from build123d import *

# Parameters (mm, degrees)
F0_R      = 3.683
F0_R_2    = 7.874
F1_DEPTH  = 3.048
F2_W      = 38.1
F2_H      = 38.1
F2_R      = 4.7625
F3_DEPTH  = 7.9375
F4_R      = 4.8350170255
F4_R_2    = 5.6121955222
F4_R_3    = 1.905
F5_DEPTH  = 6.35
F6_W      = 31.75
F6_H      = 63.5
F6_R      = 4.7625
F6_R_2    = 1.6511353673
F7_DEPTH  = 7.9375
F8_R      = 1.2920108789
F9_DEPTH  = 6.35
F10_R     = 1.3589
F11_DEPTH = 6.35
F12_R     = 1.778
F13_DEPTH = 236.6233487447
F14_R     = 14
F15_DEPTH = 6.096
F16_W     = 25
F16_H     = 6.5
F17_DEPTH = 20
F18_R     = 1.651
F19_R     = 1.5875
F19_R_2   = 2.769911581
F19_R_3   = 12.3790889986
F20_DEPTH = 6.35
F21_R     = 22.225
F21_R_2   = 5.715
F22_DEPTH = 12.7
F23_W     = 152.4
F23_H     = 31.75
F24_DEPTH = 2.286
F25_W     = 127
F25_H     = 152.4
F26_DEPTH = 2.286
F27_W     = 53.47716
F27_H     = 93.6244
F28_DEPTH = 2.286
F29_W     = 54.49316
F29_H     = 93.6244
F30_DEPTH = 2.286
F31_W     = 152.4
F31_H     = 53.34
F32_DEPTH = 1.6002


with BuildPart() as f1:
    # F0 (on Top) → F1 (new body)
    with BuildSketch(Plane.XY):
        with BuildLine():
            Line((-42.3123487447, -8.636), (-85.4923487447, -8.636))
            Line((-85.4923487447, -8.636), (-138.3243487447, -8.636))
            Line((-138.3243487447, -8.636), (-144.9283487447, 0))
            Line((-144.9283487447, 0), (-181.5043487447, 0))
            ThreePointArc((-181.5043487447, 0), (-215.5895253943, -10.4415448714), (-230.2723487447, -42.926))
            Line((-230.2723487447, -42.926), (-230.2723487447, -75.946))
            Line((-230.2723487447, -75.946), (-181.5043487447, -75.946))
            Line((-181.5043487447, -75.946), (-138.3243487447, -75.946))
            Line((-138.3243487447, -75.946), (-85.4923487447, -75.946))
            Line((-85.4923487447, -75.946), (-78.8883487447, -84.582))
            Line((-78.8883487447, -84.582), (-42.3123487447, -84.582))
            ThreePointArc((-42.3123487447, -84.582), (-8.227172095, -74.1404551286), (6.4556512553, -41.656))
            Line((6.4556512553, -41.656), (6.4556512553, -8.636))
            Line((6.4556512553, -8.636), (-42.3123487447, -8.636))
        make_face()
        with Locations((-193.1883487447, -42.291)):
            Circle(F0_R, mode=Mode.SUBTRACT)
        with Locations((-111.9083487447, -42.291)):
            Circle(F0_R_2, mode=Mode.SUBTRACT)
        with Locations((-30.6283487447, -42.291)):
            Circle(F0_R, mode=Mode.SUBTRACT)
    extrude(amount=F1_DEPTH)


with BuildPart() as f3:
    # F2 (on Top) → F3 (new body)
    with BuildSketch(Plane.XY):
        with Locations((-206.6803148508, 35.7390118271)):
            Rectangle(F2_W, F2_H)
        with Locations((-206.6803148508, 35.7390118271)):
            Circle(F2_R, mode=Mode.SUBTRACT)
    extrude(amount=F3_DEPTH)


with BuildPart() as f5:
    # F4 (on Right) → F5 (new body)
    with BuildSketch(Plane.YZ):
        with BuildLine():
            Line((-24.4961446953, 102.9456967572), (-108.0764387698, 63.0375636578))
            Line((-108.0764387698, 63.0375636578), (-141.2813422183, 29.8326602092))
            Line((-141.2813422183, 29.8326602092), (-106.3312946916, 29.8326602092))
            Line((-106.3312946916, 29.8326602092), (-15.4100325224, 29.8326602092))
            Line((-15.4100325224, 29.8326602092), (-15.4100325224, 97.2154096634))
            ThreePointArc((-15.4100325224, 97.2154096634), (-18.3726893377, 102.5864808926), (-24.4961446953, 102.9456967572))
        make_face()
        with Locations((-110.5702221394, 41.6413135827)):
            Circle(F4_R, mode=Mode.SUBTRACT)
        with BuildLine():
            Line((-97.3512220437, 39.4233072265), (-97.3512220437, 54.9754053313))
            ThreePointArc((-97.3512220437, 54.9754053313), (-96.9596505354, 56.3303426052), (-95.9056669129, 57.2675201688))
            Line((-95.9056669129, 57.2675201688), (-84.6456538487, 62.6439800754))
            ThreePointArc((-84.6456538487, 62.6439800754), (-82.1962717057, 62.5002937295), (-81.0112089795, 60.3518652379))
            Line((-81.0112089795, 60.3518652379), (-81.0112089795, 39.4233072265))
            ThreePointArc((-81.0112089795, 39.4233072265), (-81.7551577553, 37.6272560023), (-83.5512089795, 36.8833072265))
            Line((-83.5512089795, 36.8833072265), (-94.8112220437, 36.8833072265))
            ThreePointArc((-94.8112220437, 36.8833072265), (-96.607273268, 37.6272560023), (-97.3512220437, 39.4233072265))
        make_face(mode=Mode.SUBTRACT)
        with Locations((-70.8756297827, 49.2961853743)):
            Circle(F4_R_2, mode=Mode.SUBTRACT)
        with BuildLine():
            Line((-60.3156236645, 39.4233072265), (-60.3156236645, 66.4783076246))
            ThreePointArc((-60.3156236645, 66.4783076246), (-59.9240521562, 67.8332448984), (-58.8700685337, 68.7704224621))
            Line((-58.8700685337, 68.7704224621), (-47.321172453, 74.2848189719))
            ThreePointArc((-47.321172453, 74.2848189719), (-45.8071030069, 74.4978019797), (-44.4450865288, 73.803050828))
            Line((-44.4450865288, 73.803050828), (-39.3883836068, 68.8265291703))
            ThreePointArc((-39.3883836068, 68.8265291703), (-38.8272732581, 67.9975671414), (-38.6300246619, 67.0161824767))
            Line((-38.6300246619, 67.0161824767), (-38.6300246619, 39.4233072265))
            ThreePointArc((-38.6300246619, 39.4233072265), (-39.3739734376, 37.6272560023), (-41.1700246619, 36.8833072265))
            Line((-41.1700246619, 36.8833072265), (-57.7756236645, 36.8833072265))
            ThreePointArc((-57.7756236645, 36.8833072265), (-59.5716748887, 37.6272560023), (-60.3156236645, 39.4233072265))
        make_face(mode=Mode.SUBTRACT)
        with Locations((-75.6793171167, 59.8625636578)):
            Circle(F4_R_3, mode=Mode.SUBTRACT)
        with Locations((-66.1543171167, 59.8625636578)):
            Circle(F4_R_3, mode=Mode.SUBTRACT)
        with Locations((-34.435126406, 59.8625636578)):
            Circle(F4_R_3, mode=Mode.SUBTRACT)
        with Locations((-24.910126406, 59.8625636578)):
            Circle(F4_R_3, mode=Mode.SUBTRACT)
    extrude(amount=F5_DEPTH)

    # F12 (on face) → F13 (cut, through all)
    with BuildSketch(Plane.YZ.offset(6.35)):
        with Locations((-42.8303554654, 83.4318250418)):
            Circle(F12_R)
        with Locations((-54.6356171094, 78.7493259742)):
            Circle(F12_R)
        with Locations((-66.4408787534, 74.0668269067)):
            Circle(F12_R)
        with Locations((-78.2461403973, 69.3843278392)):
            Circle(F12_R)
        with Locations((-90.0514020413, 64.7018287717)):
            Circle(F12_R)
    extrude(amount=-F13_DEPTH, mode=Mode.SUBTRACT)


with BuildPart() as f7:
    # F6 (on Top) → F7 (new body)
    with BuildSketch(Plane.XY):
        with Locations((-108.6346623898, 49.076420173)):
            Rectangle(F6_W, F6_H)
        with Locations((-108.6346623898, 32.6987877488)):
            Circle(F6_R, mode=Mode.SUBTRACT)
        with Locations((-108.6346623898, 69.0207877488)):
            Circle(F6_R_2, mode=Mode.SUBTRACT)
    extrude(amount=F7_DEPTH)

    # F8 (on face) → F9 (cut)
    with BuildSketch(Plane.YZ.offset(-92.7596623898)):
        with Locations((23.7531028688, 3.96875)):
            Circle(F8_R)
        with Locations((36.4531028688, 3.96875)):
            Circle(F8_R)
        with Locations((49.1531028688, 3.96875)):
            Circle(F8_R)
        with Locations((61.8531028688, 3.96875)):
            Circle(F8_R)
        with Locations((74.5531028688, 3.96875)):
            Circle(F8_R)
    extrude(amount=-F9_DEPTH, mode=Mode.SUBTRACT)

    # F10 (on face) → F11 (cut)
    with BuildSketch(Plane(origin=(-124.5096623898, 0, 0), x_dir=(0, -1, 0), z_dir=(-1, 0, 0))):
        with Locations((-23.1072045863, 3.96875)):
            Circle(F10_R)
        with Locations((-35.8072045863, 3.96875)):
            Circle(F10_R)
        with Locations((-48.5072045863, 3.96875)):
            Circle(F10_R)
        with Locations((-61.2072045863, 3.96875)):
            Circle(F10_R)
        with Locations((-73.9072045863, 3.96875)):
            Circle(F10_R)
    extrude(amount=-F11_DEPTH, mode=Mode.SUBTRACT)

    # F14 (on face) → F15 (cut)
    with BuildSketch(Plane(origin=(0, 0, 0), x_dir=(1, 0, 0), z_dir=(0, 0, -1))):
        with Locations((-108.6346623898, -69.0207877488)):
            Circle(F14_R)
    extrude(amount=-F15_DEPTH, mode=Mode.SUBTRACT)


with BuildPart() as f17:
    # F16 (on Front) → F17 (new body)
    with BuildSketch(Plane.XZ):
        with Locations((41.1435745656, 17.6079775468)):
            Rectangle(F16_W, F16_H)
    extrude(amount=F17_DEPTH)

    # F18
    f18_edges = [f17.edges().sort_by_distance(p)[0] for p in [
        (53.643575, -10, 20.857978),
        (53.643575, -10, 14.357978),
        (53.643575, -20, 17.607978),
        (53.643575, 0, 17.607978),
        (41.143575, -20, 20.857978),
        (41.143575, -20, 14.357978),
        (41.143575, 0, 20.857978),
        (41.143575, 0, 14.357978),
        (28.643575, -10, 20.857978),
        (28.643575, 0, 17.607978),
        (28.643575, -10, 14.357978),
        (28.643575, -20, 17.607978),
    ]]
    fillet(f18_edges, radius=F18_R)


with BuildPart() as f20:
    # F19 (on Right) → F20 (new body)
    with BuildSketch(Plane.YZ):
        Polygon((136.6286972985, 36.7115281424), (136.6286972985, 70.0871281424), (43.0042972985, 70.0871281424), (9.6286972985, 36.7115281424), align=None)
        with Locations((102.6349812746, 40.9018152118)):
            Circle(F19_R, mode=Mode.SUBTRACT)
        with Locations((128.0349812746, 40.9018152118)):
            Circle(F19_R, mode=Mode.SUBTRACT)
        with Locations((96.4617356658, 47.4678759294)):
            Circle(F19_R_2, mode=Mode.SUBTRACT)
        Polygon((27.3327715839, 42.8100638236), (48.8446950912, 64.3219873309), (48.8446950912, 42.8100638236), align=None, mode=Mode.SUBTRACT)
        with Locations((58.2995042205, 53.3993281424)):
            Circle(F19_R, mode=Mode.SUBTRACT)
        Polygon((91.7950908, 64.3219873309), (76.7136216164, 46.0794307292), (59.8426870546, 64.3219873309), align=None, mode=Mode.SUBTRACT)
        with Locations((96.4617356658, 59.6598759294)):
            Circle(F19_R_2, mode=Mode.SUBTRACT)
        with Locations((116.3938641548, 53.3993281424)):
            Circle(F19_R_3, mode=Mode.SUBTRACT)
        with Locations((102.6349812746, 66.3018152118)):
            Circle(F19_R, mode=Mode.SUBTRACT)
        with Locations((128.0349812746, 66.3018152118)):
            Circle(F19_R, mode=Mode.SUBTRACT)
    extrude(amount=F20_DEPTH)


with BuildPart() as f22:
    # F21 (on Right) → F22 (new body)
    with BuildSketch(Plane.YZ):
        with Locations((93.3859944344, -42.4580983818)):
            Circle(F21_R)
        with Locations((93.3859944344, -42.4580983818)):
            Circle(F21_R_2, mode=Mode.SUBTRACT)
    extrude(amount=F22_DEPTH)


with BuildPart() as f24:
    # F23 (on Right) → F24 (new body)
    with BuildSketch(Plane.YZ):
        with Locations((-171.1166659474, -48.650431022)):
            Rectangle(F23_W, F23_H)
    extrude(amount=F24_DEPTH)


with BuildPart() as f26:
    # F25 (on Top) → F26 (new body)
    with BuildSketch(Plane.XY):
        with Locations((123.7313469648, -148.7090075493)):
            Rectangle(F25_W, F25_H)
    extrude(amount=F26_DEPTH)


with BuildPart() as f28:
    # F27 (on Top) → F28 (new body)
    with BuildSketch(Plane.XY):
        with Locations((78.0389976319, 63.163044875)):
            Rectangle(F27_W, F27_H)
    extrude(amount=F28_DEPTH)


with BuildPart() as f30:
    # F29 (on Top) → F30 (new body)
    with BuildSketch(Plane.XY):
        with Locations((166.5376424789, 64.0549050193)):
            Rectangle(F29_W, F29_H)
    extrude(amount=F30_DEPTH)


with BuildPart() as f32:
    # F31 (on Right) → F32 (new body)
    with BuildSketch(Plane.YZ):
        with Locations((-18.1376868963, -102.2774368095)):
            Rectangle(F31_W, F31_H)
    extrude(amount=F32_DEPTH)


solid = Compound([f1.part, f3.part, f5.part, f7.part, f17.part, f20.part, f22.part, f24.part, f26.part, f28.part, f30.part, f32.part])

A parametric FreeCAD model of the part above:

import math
import FreeCAD as App
import Part
import Sketcher

V = App.Vector
Q = App.Units.Quantity

doc = App.newDocument("Part")
params = doc.addObject("Spreadsheet::Sheet", "Params")
for row, (alias, value) in enumerate([
    ("sketch1_diameter", "0.29 in"),
    ("sketch1_diameter2", "0.62 in"),
    ("sketch1_width", "5.7 in"),
    ("sketch1_height", "1.3 in"),
    ("sketch1_width2", "1.44 in"),
    ("pad1_length", "0.12 in"),
    ("sketch2_diameter", "0.375 in"),
    ("sketch2_width", "1.5 in"),
    ("pad2_length", "0.3125 in"),
    ("sketch3_radius", "0.1 in"),
    ("sketch3_diameter", "0.15 in"),
    ("sketch3_radius2", "0.25 in"),
    ("pad3_length", "0.25 in"),
    ("sketch4_diameter", "0.14 in"),
    ("sketch5_diameter", "0.375 in"),
    ("sketch5_height", "2.5 in"),
    ("sketch5_width", "1.25 in"),
    ("pad4_length", "0.3125 in"),
    ("pocket2_length", "0.25 in"),
    ("sketch7_diameter", "0.107 in"),
    ("pocket3_length", "0.25 in"),
    ("pocket4_length", "0.24 in"),
    ("pad5_length", "20 mm"),
    ("fillet_radius", "0.065 in"),
    ("sketch10_width", "5 in"),
    ("sketch10_diameter", "0.125 in"),
    ("sketch10_width2", "3.686 in"),
    ("pad6_length", "0.25 in"),
    ("sketch11_diameter", "1.75 in"),
    ("sketch11_diameter2", "0.45 in"),
    ("pad7_length", "0.5 in"),
    ("sketch12_width", "6 in"),
    ("sketch12_height", "1.25 in"),
    ("pad8_length", "0.09 in"),
    ("sketch13_width", "5 in"),
    ("sketch13_height", "6 in"),
    ("pad9_length", "0.09 in"),
    ("sketch14_height", "3.686 in"),
    ("pad10_length", "0.09 in"),
    ("sketch15_height", "3.686 in"),
    ("pad11_length", "0.09 in"),
    ("sketch16_width", "6 in"),
    ("sketch16_height", "2.1 in"),
    ("pad12_length", "0.063 in"),
], start=1):
    params.set(f"A{row}", alias)
    params.set(f"B{row}", "=" + value)
    params.setAlias(f"B{row}", alias)

body = doc.addObject("PartDesign::Body", "Body")

sketch1 = doc.addObject("Sketcher::SketchObject", "Sketch")
body.addObject(sketch1)
sketch1.AttachmentSupport = (doc.XY_Plane, [""])
sketch1.MapMode = "FlatFace"
sketch1.addGeometry(Part.LineSegment(V(-138.3, -8.6, 0), V(-144.9, 0, 0)), False)
sketch1.addGeometry(Part.LineSegment(V(-144.9, 0, 0), V(-181.5, 0, 0)), False)
sketch1.addGeometry(Part.ArcOfCircle(Part.Circle(V(-187, -42.9, 0), V(0, 0, 1), 43.3), math.radians(83), math.radians(180)), False)
sketch1.addGeometry(Part.LineSegment(V(-230.3, -42.9, 0), V(-230.3, -75.9, 0)), False)
sketch1.addGeometry(Part.LineSegment(V(-230.3, -75.9, 0), V(-85.5, -75.9, 0)), False)
sketch1.addGeometry(Part.LineSegment(V(-85.5, -75.9, 0), V(-78.9, -84.6, 0)), False)
sketch1.addGeometry(Part.LineSegment(V(-78.9, -84.6, 0), V(-42.3, -84.6, 0)), False)
sketch1.addGeometry(Part.ArcOfCircle(Part.Circle(V(-36.8, -41.7, 0), V(0, 0, 1), 43.3), math.radians(-97), math.radians(0)), False)
sketch1.addGeometry(Part.LineSegment(V(6.5, -41.7, 0), V(6.5, -8.6, 0)), False)
sketch1.addGeometry(Part.LineSegment(V(6.5, -8.6, 0), V(-138.3, -8.6, 0)), False)
sketch1.addGeometry(Part.Circle(V(-193.2, -42.3, 0), V(0, 0, 1), 3.7), False)
sketch1.addGeometry(Part.Circle(V(-111.9, -42.3, 0), V(0, 0, 1), 7.9), False)
sketch1.addGeometry(Part.Circle(V(-30.6, -42.3, 0), V(0, 0, 1), 3.7), False)
sketch1.addConstraint(Sketcher.Constraint("Coincident", 0, 2, 1, 1))
sketch1.addConstraint(Sketcher.Constraint("Coincident", 1, 2, 2, 1))
sketch1.addConstraint(Sketcher.Constraint("Tangent", 2, 2, 3, 1))
sketch1.addConstraint(Sketcher.Constraint("Coincident", 3, 2, 4, 1))
sketch1.addConstraint(Sketcher.Constraint("Coincident", 4, 2, 5, 1))
sketch1.addConstraint(Sketcher.Constraint("Coincident", 5, 2, 6, 1))
sketch1.addConstraint(Sketcher.Constraint("Coincident", 6, 2, 7, 1))
sketch1.addConstraint(Sketcher.Constraint("Tangent", 7, 2, 8, 1))
sketch1.addConstraint(Sketcher.Constraint("Coincident", 8, 2, 9, 1))
sketch1.addConstraint(Sketcher.Constraint("Coincident", 9, 2, 0, 1))
sketch1.addConstraint(Sketcher.Constraint("Horizontal", 1))
sketch1.addConstraint(Sketcher.Constraint("Vertical", 3))
sketch1.addConstraint(Sketcher.Constraint("Horizontal", 4))
sketch1.addConstraint(Sketcher.Constraint("Horizontal", 6))
sketch1.addConstraint(Sketcher.Constraint("Vertical", 8))
sketch1.addConstraint(Sketcher.Constraint("Horizontal", 9))
sketch1.addConstraint(Sketcher.Constraint("Equal", 2, 7))
sketch1.addConstraint(Sketcher.Constraint("Equal", 10, 12))
sketch1.addConstraint(Sketcher.Constraint("PointOnObject", 0, 2, -1))
sketch1.addConstraint(Sketcher.Constraint("Parallel", 0, 5))
sketch1.addConstraint(Sketcher.Constraint("Horizontal", 10, 3, 11, 3))
sketch1.addConstraint(Sketcher.Constraint("Horizontal", 11, 3, 12, 3))
sketch1.addConstraint(Sketcher.Constraint("Equal", 1, 6))
sketch1.addConstraint(Sketcher.Constraint("Equal", 4, 9))
sketch1.addConstraint(Sketcher.Constraint("Equal", 3, 8))
sketch1.addConstraint(Sketcher.Constraint("Diameter", 10, Q("0.29 in")))
sketch1.addConstraint(Sketcher.Constraint("Diameter", 11, Q("0.62 in")))
sketch1.addConstraint(Sketcher.Constraint("DistanceX", 4, 1, 4, 2, Q("5.7 in")))
sketch1.addConstraint(Sketcher.Constraint("DistanceY", 3, 2, 3, 1, Q("1.3 in")))
sketch1.addConstraint(Sketcher.Constraint("DistanceX", 1, 2, 1, 1, Q("1.44 in")))
sketch1.addConstraint(Sketcher.Constraint("DistanceX", 10, 3, 11, 3, Q("3.2 in")))
sketch1.addConstraint(Sketcher.Constraint("DistanceX", 11, 3, 12, 3, Q("3.2 in")))
sketch1.addConstraint(Sketcher.Constraint("DistanceX", 0, 2, 11, 3, Q("1.3 in")))
sketch1.addConstraint(Sketcher.Constraint("DistanceX", 11, 3, 5, 2, Q("1.3 in")))
sketch1.addConstraint(Sketcher.Constraint("DistanceX", 4, 2, 6, 2, Q("1.7 in")))
sketch1.addConstraint(Sketcher.Constraint("DistanceY", 2, 3, -1, 1, Q("1.69 in")))
sketch1.addConstraint(Sketcher.Constraint("DistanceY", 7, 3, -1, 1, Q("1.64 in")))
sketch1.addConstraint(Sketcher.Constraint("DistanceY", 10, 3, -1, 1, Q("1.665 in")))
sketch1.addConstraint(Sketcher.Constraint("DistanceX", 7, 3, -1, 1, 36.82026))
sketch1.setExpression("Constraints[25]", "Params.sketch1_diameter")
sketch1.setExpression("Constraints[26]", "Params.sketch1_diameter2")
sketch1.setExpression("Constraints[27]", "Params.sketch1_width")
sketch1.setExpression("Constraints[28]", "Params.sketch1_height")
sketch1.setExpression("Constraints[29]", "Params.sketch1_width2")
pad1 = doc.addObject("PartDesign::Pad", "Pad")
body.addObject(pad1)
pad1.Profile = sketch1
pad1.setExpression("Length", "Params.pad1_length")
body2 = doc.addObject("PartDesign::Body", "Body001")

sketch2 = doc.addObject("Sketcher::SketchObject", "Sketch001")
body2.addObject(sketch2)
sketch2.AttachmentSupport = (doc.getObject("XY_Plane001"), [""])
sketch2.MapMode = "FlatFace"
sketch2.addGeometry(Part.LineSegment(V(-225.7, 54.8, 0), V(-225.7, 16.7, 0)), False)
sketch2.addGeometry(Part.LineSegment(V(-225.7, 16.7, 0), V(-187.6, 16.7, 0)), False)
sketch2.addGeometry(Part.LineSegment(V(-187.6, 16.7, 0), V(-187.6, 54.8, 0)), False)
sketch2.addGeometry(Part.LineSegment(V(-187.6, 54.8, 0), V(-225.7, 54.8, 0)), False)
sketch2.addGeometry(Part.Circle(V(-206.7, 35.7, 0), V(0, 0, 1), 4.8), False)
sketch2.addConstraint(Sketcher.Constraint("Coincident", 0, 2, 1, 1))
sketch2.addConstraint(Sketcher.Constraint("Coincident", 1, 2, 2, 1))
sketch2.addConstraint(Sketcher.Constraint("Coincident", 2, 2, 3, 1))
sketch2.addConstraint(Sketcher.Constraint("Coincident", 3, 2, 0, 1))
sketch2.addConstraint(Sketcher.Constraint("Vertical", 0))
sketch2.addConstraint(Sketcher.Constraint("Horizontal", 1))
sketch2.addConstraint(Sketcher.Constraint("Vertical", 2))
sketch2.addConstraint(Sketcher.Constraint("Horizontal", 3))
sketch2.addConstraint(Sketcher.Constraint("Equal", 3, 0))
sketch2.addConstraint(Sketcher.Constraint("Diameter", 4, Q("0.375 in")))
sketch2.addConstraint(Sketcher.Constraint("DistanceX", 1, 1, 1, 2, Q("1.5 in")))
sketch2.addConstraint(Sketcher.Constraint("DistanceX", 0, 2, 4, 3, Q("0.75 in")))
sketch2.addConstraint(Sketcher.Constraint("DistanceY", 0, 2, 4, 3, Q("0.75 in")))
sketch2.addConstraint(Sketcher.Constraint("DistanceY", -1, 1, 4, 3, 35.739012))
sketch2.addConstraint(Sketcher.Constraint("DistanceX", 4, 3, -1, 1, 206.680315))
sketch2.setExpression("Constraints[9]", "Params.sketch2_diameter")
sketch2.setExpression("Constraints[10]", "Params.sketch2_width")
pad2 = doc.addObject("PartDesign::Pad", "Pad001")
body2.addObject(pad2)
pad2.Profile = sketch2
pad2.setExpression("Length", "Params.pad2_length")
body3 = doc.addObject("PartDesign::Body", "Body002")

sketch3 = doc.addObject("Sketcher::SketchObject", "Sketch002")
body3.addObject(sketch3)
sketch3.AttachmentSupport = (doc.getObject("YZ_Plane002"), [""])
sketch3.MapMode = "FlatFace"
sketch3.addGeometry(Part.LineSegment(V(-24.5, 102.9, 0), V(-108.1, 63, 0)), False)
sketch3.addGeometry(Part.LineSegment(V(-108.1, 63, 0), V(-141.3, 29.8, 0)), False)
sketch3.addGeometry(Part.LineSegment(V(-141.3, 29.8, 0), V(-15.4, 29.8, 0)), False)
sketch3.addGeometry(Part.LineSegment(V(-15.4, 29.8, 0), V(-15.4, 97.2, 0)), False)
sketch3.addGeometry(Part.ArcOfCircle(Part.Circle(V(-21.8, 97.2, 0), V(0, 0, 1), 6.3), math.radians(0), math.radians(116)), False)
sketch3.addGeometry(Part.Circle(V(-110.6, 41.6, 0), V(0, 0, 1), 4.8), False)
sketch3.addGeometry(Part.ArcOfCircle(Part.Circle(V(-94.8, 39.4, 0), V(0, 0, 1), 2.5), math.radians(180), math.radians(270)), False)
sketch3.addGeometry(Part.LineSegment(V(-97.4, 39.4, 0), V(-97.4, 55, 0)), False)
sketch3.addGeometry(Part.ArcOfCircle(Part.Circle(V(-94.8, 55, 0), V(0, 0, 1), 2.5), math.radians(116), math.radians(180)), False)
sketch3.addGeometry(Part.LineSegment(V(-95.9, 57.3, 0), V(-84.6, 62.6, 0)), False)
sketch3.addGeometry(Part.ArcOfCircle(Part.Circle(V(-83.6, 60.4, 0), V(0, 0, 1), 2.5), math.radians(0), math.radians(116)), False)
sketch3.addGeometry(Part.LineSegment(V(-81, 60.4, 0), V(-81, 39.4, 0)), False)
sketch3.addGeometry(Part.ArcOfCircle(Part.Circle(V(-83.6, 39.4, 0), V(0, 0, 1), 2.5), math.radians(-90), math.radians(0)), False)
sketch3.addGeometry(Part.LineSegment(V(-83.6, 36.9, 0), V(-94.8, 36.9, 0)), False)
sketch3.addGeometry(Part.Circle(V(-70.9, 49.3, 0), V(0, 0, 1), 5.6), False)
sketch3.addGeometry(Part.Circle(V(-75.7, 59.9, 0), V(0, 0, 1), 1.9), False)
sketch3.addGeometry(Part.Circle(V(-66.2, 59.9, 0), V(0, 0, 1), 1.9), False)
sketch3.addGeometry(Part.ArcOfCircle(Part.Circle(V(-57.8, 39.4, 0), V(0, 0, 1), 2.5), math.radians(180), math.radians(270)), False)
sketch3.addGeometry(Part.LineSegment(V(-60.3, 39.4, 0), V(-60.3, 66.5, 0)), False)
sketch3.addGeometry(Part.ArcOfCircle(Part.Circle(V(-57.8, 66.5, 0), V(0, 0, 1), 2.5), math.radians(116), math.radians(180)), False)
sketch3.addGeometry(Part.LineSegment(V(-58.9, 68.8, 0), V(-47.3, 74.3, 0)), False)
sketch3.addGeometry(Part.ArcOfCircle(Part.Circle(V(-46.2, 72, 0), V(0, 0, 1), 2.5), math.radians(45), math.radians(116)), False)
sketch3.addGeometry(Part.LineSegment(V(-44.4, 73.8, 0), V(-39.4, 68.8, 0)), False)
sketch3.addGeometry(Part.ArcOfCircle(Part.Circle(V(-41.2, 67, 0), V(0, 0, 1), 2.5), math.radians(0), math.radians(45)), False)
sketch3.addGeometry(Part.LineSegment(V(-38.6, 67, 0), V(-38.6, 39.4, 0)), False)
sketch3.addGeometry(Part.ArcOfCircle(Part.Circle(V(-41.2, 39.4, 0), V(0, 0, 1), 2.5), math.radians(-90), math.radians(0)), False)
sketch3.addGeometry(Part.LineSegment(V(-41.2, 36.9, 0), V(-57.8, 36.9, 0)), False)
sketch3.addGeometry(Part.Circle(V(-34.4, 59.9, 0), V(0, 0, 1), 1.9), False)
sketch3.addGeometry(Part.Circle(V(-24.9, 59.9, 0), V(0, 0, 1), 1.9), False)
sketch3.addConstraint(Sketcher.Constraint("Coincident", 0, 2, 1, 1))
sketch3.addConstraint(Sketcher.Constraint("Coincident", 1, 2, 2, 1))
sketch3.addConstraint(Sketcher.Constraint("Coincident", 2, 2, 3, 1))
sketch3.addConstraint(Sketcher.Constraint("Tangent", 3, 2, 4, 1))
sketch3.addConstraint(Sketcher.Constraint("Tangent", 4, 2, 0, 1))
sketch3.addConstraint(Sketcher.Constraint("Tangent", 6, 1, 7, 1))
sketch3.addConstraint(Sketcher.Constraint("Tangent", 7, 2, 8, 2))
sketch3.addConstraint(Sketcher.Constraint("Tangent", 8, 1, 9, 1))
sketch3.addConstraint(Sketcher.Constraint("Tangent", 9, 2, 10, 2))
sketch3.addConstraint(Sketcher.Constraint("Tangent", 10, 1, 11, 1))
sketch3.addConstraint(Sketcher.Constraint("Tangent", 11, 2, 12, 2))
sketch3.addConstraint(Sketcher.Constraint("Tangent", 12, 1, 13, 1))
sketch3.addConstraint(Sketcher.Constraint("Tangent", 13, 2, 6, 2))
sketch3.addConstraint(Sketcher.Constraint("Tangent", 17, 1, 18, 1))
sketch3.addConstraint(Sketcher.Constraint("Tangent", 18, 2, 19, 2))
sketch3.addConstraint(Sketcher.Constraint("Tangent", 19, 1, 20, 1))
sketch3.addConstraint(Sketcher.Constraint("Tangent", 20, 2, 21, 2))
sketch3.addConstraint(Sketcher.Constraint("Tangent", 21, 1, 22, 1))
sketch3.addConstraint(Sketcher.Constraint("Tangent", 22, 2, 23, 2))
sketch3.addConstraint(Sketcher.Constraint("Tangent", 23, 1, 24, 1))
sketch3.addConstraint(Sketcher.Constraint("Tangent", 24, 2, 25, 2))
sketch3.addConstraint(Sketcher.Constraint("Tangent", 25, 1, 26, 1))
sketch3.addConstraint(Sketcher.Constraint("Tangent", 26, 2, 17, 2))
sketch3.addConstraint(Sketcher.Constraint("Horizontal", 2))
sketch3.addConstraint(Sketcher.Constraint("Vertical", 3))
sketch3.addConstraint(Sketcher.Constraint("Vertical", 7))
sketch3.addConstraint(Sketcher.Constraint("Vertical", 11))
sketch3.addConstraint(Sketcher.Constraint("Horizontal", 13))
sketch3.addConstraint(Sketcher.Constraint("Vertical", 18))
sketch3.addConstraint(Sketcher.Constraint("Vertical", 24))
sketch3.addConstraint(Sketcher.Constraint("Horizontal", 26))
sketch3.addConstraint(Sketcher.Constraint("Equal", 6, 8))
sketch3.addConstraint(Sketcher.Constraint("Equal", 8, 10))
sketch3.addConstraint(Sketcher.Constraint("Equal", 10, 12))
sketch3.addConstraint(Sketcher.Constraint("Equal", 15, 16))
sketch3.addConstraint(Sketcher.Constraint("Equal", 12, 17))
sketch3.addConstraint(Sketcher.Constraint("Equal", 17, 19))
sketch3.addConstraint(Sketcher.Constraint("Equal", 19, 21))
sketch3.addConstraint(Sketcher.Constraint("Equal", 21, 23))
sketch3.addConstraint(Sketcher.Constraint("Equal", 23, 25))
sketch3.addConstraint(Sketcher.Constraint("Equal", 16, 27))
sketch3.addConstraint(Sketcher.Constraint("Equal", 27, 28))
sketch3.addConstraint(Sketcher.Constraint("Parallel", 0, 9))
sketch3.addConstraint(Sketcher.Constraint("Parallel", 9, 20))
sketch3.addConstraint(Sketcher.Constraint("Horizontal", 15, 3, 16, 3))
sketch3.addConstraint(Sketcher.Constraint("Horizontal", 12, 3, 17, 3))
sketch3.addConstraint(Sketcher.Constraint("Horizontal", 16, 3, 27, 3))
sketch3.addConstraint(Sketcher.Constraint("Horizontal", 27, 3, 28, 3))
sketch3.addConstraint(Sketcher.Constraint("Radius", 6, Q("0.1 in")))
sketch3.addConstraint(Sketcher.Constraint("Diameter", 15, Q("0.15 in")))
sketch3.addConstraint(Sketcher.Constraint("Radius", 4, Q("0.25 in")))
sketch3.addConstraint(Sketcher.Constraint("Angle", 1, Q("-135 deg")))
sketch3.addConstraint(Sketcher.Constraint("Diameter", 14, 11.224391))
sketch3.addConstraint(Sketcher.Constraint("DistanceX", 15, 3, 16, 3, Q("0.375 in")))
sketch3.addConstraint(Sketcher.Constraint("DistanceX", 27, 3, 28, 3, Q("0.375 in")))
sketch3.addConstraint(Sketcher.Constraint("DistanceY", 15, 3, 0, 2, Q("0.125 in")))
sketch3.addConstraint(Sketcher.Constraint("Diameter", 5, 9.670034))
sketch3.addConstraint(Sketcher.Constraint("DistanceX", 26, 2, 26, 1, 16.605599))
sketch3.addConstraint(Sketcher.Constraint("DistanceY", 7, 1, 7, 2, 15.552098))
sketch3.addConstraint(Sketcher.Constraint("DistanceY", 18, 1, 18, 2, 27.055))
sketch3.addConstraint(Sketcher.Constraint("DistanceX", 2, 1, 2, 2, 125.87131))
sketch3.addConstraint(Sketcher.Constraint("DistanceY", 3, 1, 3, 2, 67.382749))
sketch3.addConstraint(Sketcher.Constraint("DistanceY", 11, 2, 11, 1, 20.928558))
sketch3.addConstraint(Sketcher.Constraint("DistanceX", 5, 3, 6, 3, 15.759))
sketch3.addConstraint(Sketcher.Constraint("DistanceY", 15, 3, 10, 3, 0.489302))
sketch3.addConstraint(Sketcher.Constraint("DistanceX", 23, 3, 27, 3, 6.734898))
sketch3.addConstraint(Sketcher.Constraint("DistanceX", 21, 3, 27, 3, 11.791601))
sketch3.addConstraint(Sketcher.Constraint("Distance", 9, 12.477749))
sketch3.addConstraint(Sketcher.Constraint("DistanceY", 24, 2, 24, 1, 27.592875))
sketch3.addConstraint(Sketcher.Constraint("DistanceY", -1, 1, 4, 3, 97.21541))
sketch3.addConstraint(Sketcher.Constraint("DistanceX", 10, 3, -1, 1, 83.551209))
sketch3.addConstraint(Sketcher.Constraint("DistanceX", 14, 3, -1, 1, 70.87563))
sketch3.addConstraint(Sketcher.Constraint("DistanceX", 0, 2, -1, 1, 108.076439))
sketch3.addConstraint(Sketcher.Constraint("DistanceX", 19, 1, -1, 1, 58.870069))
sketch3.addConstraint(Sketcher.Constraint("DistanceY", 5, 3, 8, 3, 13.334092))
sketch3.addConstraint(Sketcher.Constraint("DistanceY", 12, 3, 14, 3, 9.872878))
sketch3.addConstraint(Sketcher.Constraint("DistanceX", 10, 3, 15, 3, 7.871892))
sketch3.setExpression("Constraints[48]", "Params.sketch3_radius")
sketch3.setExpression("Constraints[49]", "Params.sketch3_diameter")
sketch3.setExpression("Constraints[50]", "Params.sketch3_radius2")
pad3 = doc.addObject("PartDesign::Pad", "Pad002")
body3.addObject(pad3)
pad3.Profile = sketch3
pad3.setExpression("Length", "Params.pad3_length")

sketch4 = doc.addObject("Sketcher::SketchObject", "Sketch003")
body3.addObject(sketch4)
sketch4.AttachmentSupport = (doc.getObject("YZ_Plane002"), [""])
sketch4.MapMode = "FlatFace"
sketch4.AttachmentOffset = App.Placement(V(0, 0, 0.25 * 25.4), App.Rotation())
sketch4.addGeometry(Part.Circle(V(-42.8, 83.4, 0), V(0, 0, 1), 1.8), False)
sketch4.addGeometry(Part.Circle(V(-54.6, 78.7, 0), V(0, 0, 1), 1.8), False)
sketch4.addGeometry(Part.Circle(V(-66.4, 74.1, 0), V(0, 0, 1), 1.8), False)
sketch4.addGeometry(Part.Circle(V(-78.2, 69.4, 0), V(0, 0, 1), 1.8), False)
sketch4.addGeometry(Part.Circle(V(-90.1, 64.7, 0), V(0, 0, 1), 1.8), False)
sketch4.addConstraint(Sketcher.Constraint("Equal", 0, 1))
sketch4.addConstraint(Sketcher.Constraint("Equal", 1, 2))
sketch4.addConstraint(Sketcher.Constraint("Equal", 2, 3))
sketch4.addConstraint(Sketcher.Constraint("Equal", 3, 4))
sketch4.addConstraint(Sketcher.Constraint("Diameter", 0, Q("0.14 in")))
sketch4.addConstraint(Sketcher.Constraint("DistanceY", 1, 3, 0, 3, 4.682499))
sketch4.addConstraint(Sketcher.Constraint("DistanceY", 2, 3, 1, 3, 4.682499))
sketch4.addConstraint(Sketcher.Constraint("DistanceY", 3, 3, 2, 3, 4.682499))
sketch4.addConstraint(Sketcher.Constraint("DistanceY", 4, 3, 3, 3, 4.682499))
sketch4.addConstraint(Sketcher.Constraint("DistanceX", 2, 3, -1, 1, 66.440879))
sketch4.addConstraint(Sketcher.Constraint("DistanceX", 3, 3, -1, 1, 78.24614))
sketch4.addConstraint(Sketcher.Constraint("DistanceY", -1, 1, 4, 3, 64.701829))
sketch4.addConstraint(Sketcher.Constraint("DistanceX", 1, 3, 0, 3, 11.805262))
sketch4.addConstraint(Sketcher.Constraint("DistanceX", 2, 3, 1, 3, 11.805262))
sketch4.addConstraint(Sketcher.Constraint("DistanceX", 4, 3, 3, 3, 11.805262))
sketch4.setExpression("Constraints[4]", "Params.sketch4_diameter")
pocket1 = doc.addObject("PartDesign::Pocket", "Pocket")
body3.addObject(pocket1)
pocket1.Profile = sketch4
pocket1.Type = "ThroughAll"
body4 = doc.addObject("PartDesign::Body", "Body003")

sketch5 = doc.addObject("Sketcher::SketchObject", "Sketch004")
body4.addObject(sketch5)
sketch5.AttachmentSupport = (doc.getObject("XY_Plane003"), [""])
sketch5.MapMode = "FlatFace"
sketch5.addGeometry(Part.LineSegment(V(-124.5, 80.8, 0), V(-124.5, 17.3, 0)), False)
sketch5.addGeometry(Part.LineSegment(V(-124.5, 17.3, 0), V(-92.8, 17.3, 0)), False)
sketch5.addGeometry(Part.LineSegment(V(-92.8, 17.3, 0), V(-92.8, 80.8, 0)), False)
sketch5.addGeometry(Part.LineSegment(V(-92.8, 80.8, 0), V(-124.5, 80.8, 0)), False)
sketch5.addGeometry(Part.Circle(V(-108.6, 32.7, 0), V(0, 0, 1), 4.8), False)
sketch5.addGeometry(Part.Circle(V(-108.6, 69, 0), V(0, 0, 1), 1.7), False)
sketch5.addConstraint(Sketcher.Constraint("Coincident", 0, 2, 1, 1))
sketch5.addConstraint(Sketcher.Constraint("Coincident", 1, 2, 2, 1))
sketch5.addConstraint(Sketcher.Constraint("Coincident", 2, 2, 3, 1))
sketch5.addConstraint(Sketcher.Constraint("Coincident", 3, 2, 0, 1))
sketch5.addConstraint(Sketcher.Constraint("Vertical", 0))
sketch5.addConstraint(Sketcher.Constraint("Horizontal", 1))
sketch5.addConstraint(Sketcher.Constraint("Vertical", 2))
sketch5.addConstraint(Sketcher.Constraint("Horizontal", 3))
sketch5.addConstraint(Sketcher.Constraint("Vertical", 4, 3, 5, 3))
sketch5.addConstraint(Sketcher.Constraint("Diameter", 4, Q("0.375 in")))
sketch5.addConstraint(Sketcher.Constraint("DistanceY", 0, 2, 0, 1, Q("2.5 in")))
sketch5.addConstraint(Sketcher.Constraint("DistanceX", 1, 1, 1, 2, Q("1.25 in")))
sketch5.addConstraint(Sketcher.Constraint("DistanceY", 4, 3, 5, 3, Q("1.43 in")))
sketch5.addConstraint(Sketcher.Constraint("Diameter", 5, 3.302271))
sketch5.addConstraint(Sketcher.Constraint("DistanceX", 0, 2, 4, 3, Q("0.625 in")))
sketch5.addConstraint(Sketcher.Constraint("DistanceY", -1, 1, 0, 2, 17.32642))
sketch5.addConstraint(Sketcher.Constraint("DistanceX", 4, 3, -1, 1, 108.634662))
sketch5.addConstraint(Sketcher.Constraint("DistanceY", -1, 1, 4, 3, 32.698788))
sketch5.setExpression("Constraints[9]", "Params.sketch5_diameter")
sketch5.setExpression("Constraints[10]", "Params.sketch5_height")
sketch5.setExpression("Constraints[11]", "Params.sketch5_width")
pad4 = doc.addObject("PartDesign::Pad", "Pad003")
body4.addObject(pad4)
pad4.Profile = sketch5
pad4.setExpression("Length", "Params.pad4_length")

sketch6 = doc.addObject("Sketcher::SketchObject", "Sketch005")
body4.addObject(sketch6)
sketch6.AttachmentSupport = (doc.getObject("YZ_Plane003"), [""])
sketch6.MapMode = "FlatFace"
sketch6.AttachmentOffset = App.Placement(V(0, 0, -92.759662), App.Rotation())
sketch6.addGeometry(Part.Circle(V(23.8, 4, 0), V(0, 0, 1), 1.3), False)
sketch6.addGeometry(Part.Circle(V(36.5, 4, 0), V(0, 0, 1), 1.3), False)
sketch6.addGeometry(Part.Circle(V(49.2, 4, 0), V(0, 0, 1), 1.3), False)
sketch6.addGeometry(Part.Circle(V(61.9, 4, 0), V(0, 0, 1), 1.3), False)
sketch6.addGeometry(Part.Circle(V(74.6, 4, 0), V(0, 0, 1), 1.3), False)
sketch6.addConstraint(Sketcher.Constraint("Equal", 0, 1))
sketch6.addConstraint(Sketcher.Constraint("Equal", 1, 2))
sketch6.addConstraint(Sketcher.Constraint("Equal", 2, 3))
sketch6.addConstraint(Sketcher.Constraint("Equal", 3, 4))
sketch6.addConstraint(Sketcher.Constraint("Horizontal", 0, 3, 1, 3))
sketch6.addConstraint(Sketcher.Constraint("Horizontal", 1, 3, 2, 3))
sketch6.addConstraint(Sketcher.Constraint("Horizontal", 2, 3, 3, 3))
sketch6.addConstraint(Sketcher.Constraint("Horizontal", 3, 3, 4, 3))
sketch6.addConstraint(Sketcher.Constraint("DistanceX", 0, 3, 2, 3, Q("1 in")))
sketch6.addConstraint(Sketcher.Constraint("DistanceX", 1, 3, 3, 3, Q("1 in")))
sketch6.addConstraint(Sketcher.Constraint("DistanceX", 2, 3, 4, 3, Q("1 in")))
sketch6.addConstraint(Sketcher.Constraint("DistanceX", 0, 3, 1, 3, Q("0.5 in")))
sketch6.addConstraint(Sketcher.Constraint("Diameter", 0, 2.584022))
sketch6.addConstraint(Sketcher.Constraint("DistanceY", -1, 1, 0, 3, Q("0.15625 in")))
sketch6.addConstraint(Sketcher.Constraint("DistanceX", -1, 1, 0, 3, 23.753103))
pocket2 = doc.addObject("PartDesign::Pocket", "Pocket001")
body4.addObject(pocket2)
pocket2.Profile = sketch6
pocket2.setExpression("Length", "Params.pocket2_length")

sketch7 = doc.addObject("Sketcher::SketchObject", "Sketch006")
body4.addObject(sketch7)
sketch7.AttachmentSupport = (doc.getObject("YZ_Plane003"), [""])
sketch7.MapMode = "FlatFace"
sketch7.AttachmentOffset = App.Placement(V(0, 0, -124.509662), App.Rotation())
sketch7.addGeometry(Part.Circle(V(23.1, 4, 0), V(0, 0, 1), 1.4), False)
sketch7.addGeometry(Part.Circle(V(35.8, 4, 0), V(0, 0, 1), 1.4), False)
sketch7.addGeometry(Part.Circle(V(48.5, 4, 0), V(0, 0, 1), 1.4), False)
sketch7.addGeometry(Part.Circle(V(61.2, 4, 0), V(0, 0, 1), 1.4), False)
sketch7.addGeometry(Part.Circle(V(73.9, 4, 0), V(0, 0, 1), 1.4), False)
sketch7.addConstraint(Sketcher.Constraint("Equal", 0, 1))
sketch7.addConstraint(Sketcher.Constraint("Equal", 1, 2))
sketch7.addConstraint(Sketcher.Constraint("Equal", 2, 3))
sketch7.addConstraint(Sketcher.Constraint("Equal", 3, 4))
sketch7.addConstraint(Sketcher.Constraint("Horizontal", 0, 3, 1, 3))
sketch7.addConstraint(Sketcher.Constraint("Horizontal", 1, 3, 2, 3))
sketch7.addConstraint(Sketcher.Constraint("Horizontal", 2, 3, 3, 3))
sketch7.addConstraint(Sketcher.Constraint("Horizontal", 3, 3, 4, 3))
sketch7.addConstraint(Sketcher.Constraint("Diameter", 0, Q("0.107 in")))
sketch7.addConstraint(Sketcher.Constraint("DistanceX", 0, 3, 2, 3, Q("1 in")))
sketch7.addConstraint(Sketcher.Constraint("DistanceX", 1, 3, 3, 3, Q("1 in")))
sketch7.addConstraint(Sketcher.Constraint("DistanceX", 2, 3, 4, 3, Q("1 in")))
sketch7.addConstraint(Sketcher.Constraint("DistanceX", 0, 3, 1, 3, Q("0.5 in")))
sketch7.addConstraint(Sketcher.Constraint("DistanceY", -1, 1, 0, 3, Q("0.15625 in")))
sketch7.addConstraint(Sketcher.Constraint("DistanceX", -1, 1, 0, 3, 23.107205))
sketch7.setExpression("Constraints[8]", "Params.sketch7_diameter")
pocket3 = doc.addObject("PartDesign::Pocket", "Pocket002")
body4.addObject(pocket3)
pocket3.Profile = sketch7
pocket3.setExpression("Length", "Params.pocket3_length")
pocket3.Reversed = True

sketch8 = doc.addObject("Sketcher::SketchObject", "Sketch007")
body4.addObject(sketch8)
sketch8.AttachmentSupport = (doc.getObject("XY_Plane003"), [""])
sketch8.MapMode = "FlatFace"
sketch8.addGeometry(Part.Circle(V(-109, 69, 0), V(0, 0, 1), 14), False)
sketch8.addConstraint(Sketcher.Constraint("Diameter", 0, 28.0))
sketch8.addConstraint(Sketcher.Constraint("DistanceX", 0, 3, -1, 1, 108.634662))
sketch8.addConstraint(Sketcher.Constraint("DistanceY", -1, 1, 0, 3, 69.020788))
pocket4 = doc.addObject("PartDesign::Pocket", "Pocket003")
body4.addObject(pocket4)
pocket4.Profile = sketch8
pocket4.setExpression("Length", "Params.pocket4_length")
pocket4.Reversed = True
body5 = doc.addObject("PartDesign::Body", "Body004")

sketch9 = doc.addObject("Sketcher::SketchObject", "Sketch008")
body5.addObject(sketch9)
sketch9.AttachmentSupport = (doc.getObject("XZ_Plane004"), [""])
sketch9.MapMode = "FlatFace"
sketch9.addGeometry(Part.LineSegment(V(29, 21, 0), V(29, 14, 0)), False)
sketch9.addGeometry(Part.LineSegment(V(29, 14, 0), V(54, 14, 0)), False)
sketch9.addGeometry(Part.LineSegment(V(54, 14, 0), V(54, 21, 0)), False)
sketch9.addGeometry(Part.LineSegment(V(54, 21, 0), V(29, 21, 0)), False)
sketch9.addConstraint(Sketcher.Constraint("Coincident", 0, 2, 1, 1))
sketch9.addConstraint(Sketcher.Constraint("Coincident", 1, 2, 2, 1))
sketch9.addConstraint(Sketcher.Constraint("Coincident", 2, 2, 3, 1))
sketch9.addConstraint(Sketcher.Constraint("Coincident", 3, 2, 0, 1))
sketch9.addConstraint(Sketcher.Constraint("Vertical", 0))
sketch9.addConstraint(Sketcher.Constraint("Horizontal", 1))
sketch9.addConstraint(Sketcher.Constraint("Vertical", 2))
sketch9.addConstraint(Sketcher.Constraint("Horizontal", 3))
sketch9.addConstraint(Sketcher.Constraint("DistanceX", 1, 1, 1, 2, 25.0))
sketch9.addConstraint(Sketcher.Constraint("DistanceY", 0, 2, 0, 1, 6.5))
sketch9.addConstraint(Sketcher.Constraint("DistanceX", -1, 1, 0, 2, 28.643575))
sketch9.addConstraint(Sketcher.Constraint("DistanceY", -1, 1, 0, 2, 14.357978))
pad5 = doc.addObject("PartDesign::Pad", "Pad004")
body5.addObject(pad5)
pad5.Profile = sketch9
pad5.setExpression("Length", "Params.pad5_length")
doc.recompute()

fillet = doc.addObject("PartDesign::Fillet", "Fillet")
body5.addObject(fillet)
fillet.Base = (pad5, ["Edge1"])
fillet.UseAllEdges = True
fillet.setExpression("Radius", "Params.fillet_radius")
body6 = doc.addObject("PartDesign::Body", "Body005")

sketch10 = doc.addObject("Sketcher::SketchObject", "Sketch009")
body6.addObject(sketch10)
sketch10.AttachmentSupport = (doc.getObject("YZ_Plane005"), [""])
sketch10.MapMode = "FlatFace"
sketch10.addGeometry(Part.LineSegment(V(136.6, 36.7, 0), V(136.6, 70.1, 0)), False)
sketch10.addGeometry(Part.LineSegment(V(136.6, 70.1, 0), V(43, 70.1, 0)), False)
sketch10.addGeometry(Part.LineSegment(V(43, 70.1, 0), V(9.6, 36.7, 0)), False)
sketch10.addGeometry(Part.LineSegment(V(9.6, 36.7, 0), V(136.6, 36.7, 0)), False)
sketch10.addGeometry(Part.LineSegment(V(48.8, 42.8, 0), V(27.3, 42.8, 0)), False)
sketch10.addGeometry(Part.LineSegment(V(27.3, 42.8, 0), V(48.8, 64.3, 0)), False)
sketch10.addGeometry(Part.LineSegment(V(48.8, 64.3, 0), V(48.8, 42.8, 0)), False)
sketch10.addGeometry(Part.Circle(V(58.3, 53.4, 0), V(0, 0, 1), 1.6), False)
sketch10.addGeometry(Part.Circle(V(102.6, 40.9, 0), V(0, 0, 1), 1.6), False)
sketch10.addGeometry(Part.Circle(V(128, 40.9, 0), V(0, 0, 1), 1.6), False)
sketch10.addGeometry(Part.Circle(V(96.5, 47.5, 0), V(0, 0, 1), 2.8), False)
sketch10.addGeometry(Part.Circle(V(116.4, 53.4, 0), V(0, 0, 1), 12.4), False)
sketch10.addGeometry(Part.LineSegment(V(59.8, 64.3, 0), V(91.8, 64.3, 0)), False)
sketch10.addGeometry(Part.LineSegment(V(91.8, 64.3, 0), V(76.7, 46.1, 0)), False)
sketch10.addGeometry(Part.LineSegment(V(76.7, 46.1, 0), V(59.8, 64.3, 0)), False)
sketch10.addGeometry(Part.Circle(V(96.5, 59.7, 0), V(0, 0, 1), 2.8), False)
sketch10.addGeometry(Part.Circle(V(102.6, 66.3, 0), V(0, 0, 1), 1.6), False)
sketch10.addGeometry(Part.Circle(V(128, 66.3, 0), V(0, 0, 1), 1.6), False)
sketch10.addConstraint(Sketcher.Constraint("Coincident", 0, 2, 1, 1))
sketch10.addConstraint(Sketcher.Constraint("Coincident", 1, 2, 2, 1))
sketch10.addConstraint(Sketcher.Constraint("Coincident", 2, 2, 3, 1))
sketch10.addConstraint(Sketcher.Constraint("Coincident", 3, 2, 0, 1))
sketch10.addConstraint(Sketcher.Constraint("Coincident", 4, 2, 5, 1))
sketch10.addConstraint(Sketcher.Constraint("Coincident", 5, 2, 6, 1))
sketch10.addConstraint(Sketcher.Constraint("Coincident", 6, 2, 4, 1))
sketch10.addConstraint(Sketcher.Constraint("Coincident", 12, 2, 13, 1))
sketch10.addConstraint(Sketcher.Constraint("Coincident", 13, 2, 14, 1))
sketch10.addConstraint(Sketcher.Constraint("Coincident", 14, 2, 12, 1))
sketch10.addConstraint(Sketcher.Constraint("Vertical", 0))
sketch10.addConstraint(Sketcher.Constraint("Horizontal", 1))
sketch10.addConstraint(Sketcher.Constraint("Horizontal", 3))
sketch10.addConstraint(Sketcher.Constraint("Horizontal", 4))
sketch10.addConstraint(Sketcher.Constraint("Vertical", 6))
sketch10.addConstraint(Sketcher.Constraint("Horizontal", 12))
sketch10.addConstraint(Sketcher.Constraint("Equal", 7, 8))
sketch10.addConstraint(Sketcher.Constraint("Equal", 8, 9))
sketch10.addConstraint(Sketcher.Constraint("Equal", 10, 15))
sketch10.addConstraint(Sketcher.Constraint("Equal", 9, 16))
sketch10.addConstraint(Sketcher.Constraint("Equal", 16, 17))
sketch10.addConstraint(Sketcher.Constraint("Parallel", 2, 5))
sketch10.addConstraint(Sketcher.Constraint("Horizontal", 8, 3, 9, 3))
sketch10.addConstraint(Sketcher.Constraint("Horizontal", 7, 3, 11, 3))
sketch10.addConstraint(Sketcher.Constraint("Horizontal", 16, 3, 17, 3))
sketch10.addConstraint(Sketcher.Constraint("Horizontal", 5, 2, 12, 2))
sketch10.addConstraint(Sketcher.Constraint("Vertical", 10, 3, 15, 3))
sketch10.addConstraint(Sketcher.Constraint("Vertical", 8, 3, 16, 3))
sketch10.addConstraint(Sketcher.Constraint("Vertical", 9, 3, 17, 3))
sketch10.addConstraint(Sketcher.Constraint("Equal", 4, 6))
sketch10.addConstraint(Sketcher.Constraint("DistanceX", 3, 1, 3, 2, Q("5 in")))
sketch10.addConstraint(Sketcher.Constraint("Diameter", 7, Q("0.125 in")))
sketch10.addConstraint(Sketcher.Constraint("DistanceX", 8, 3, 9, 3, Q("1 in")))
sketch10.addConstraint(Sketcher.Constraint("DistanceY", 8, 3, 16, 3, Q("1 in")))
sketch10.addConstraint(Sketcher.Constraint("DistanceX", 1, 2, 1, 1, Q("3.686 in")))
sketch10.addConstraint(Sketcher.Constraint("DistanceY", 10, 3, 15, 3, Q("0.48 in")))
sketch10.addConstraint(Sketcher.Constraint("DistanceY", 11, 3, 0, 2, Q("0.657 in")))
sketch10.addConstraint(Sketcher.Constraint("Diameter", 10, 5.539823))
sketch10.addConstraint(Sketcher.Constraint("Diameter", 11, 24.758178))
sketch10.addConstraint(Sketcher.Constraint("DistanceY", 2, 2, 4, 2, Q("0.2400998 in")))
sketch10.addConstraint(Sketcher.Constraint("DistanceX", 4, 2, 4, 1, 21.511924))
sketch10.addConstraint(Sketcher.Constraint("DistanceX", 12, 1, 12, 2, 31.952404))
sketch10.addConstraint(Sketcher.Constraint("DistanceY", -1, 1, 7, 3, 53.399328))
sketch10.addConstraint(Sketcher.Constraint("DistanceX", -1, 1, 8, 3, 102.634981))
sketch10.addConstraint(Sketcher.Constraint("DistanceX", -1, 1, 4, 2, 27.332772))
sketch10.addConstraint(Sketcher.Constraint("DistanceX", -1, 1, 12, 2, 91.795091))
sketch10.addConstraint(Sketcher.Constraint("DistanceX", -1, 1, 13, 2, 76.713622))
sketch10.addConstraint(Sketcher.Constraint("DistanceY", -1, 1, 13, 2, 46.079431))
sketch10.addConstraint(Sketcher.Constraint("DistanceY", 8, 3, 10, 3, 6.566061))
sketch10.addConstraint(Sketcher.Constraint("DistanceX", 7, 3, 10, 3, 38.162231))
sketch10.addConstraint(Sketcher.Constraint("DistanceX", 10, 3, 11, 3, 19.932128))
sketch10.addConstraint(Sketcher.Constraint("DistanceX", 15, 3, 0, 2, 40.166962))
sketch10.addConstraint(Sketcher.Constraint("DistanceX", 5, 2, 7, 3, 9.454809))
sketch10.addConstraint(Sketcher.Constraint("DistanceY", 15, 3, 5, 2, 4.662111))
sketch10.setExpression("Constraints[30]", "Params.sketch10_width")
sketch10.setExpression("Constraints[31]", "Params.sketch10_diameter")
sketch10.setExpression("Constraints[34]", "Params.sketch10_width2")
pad6 = doc.addObject("PartDesign::Pad", "Pad005")
body6.addObject(pad6)
pad6.Profile = sketch10
pad6.setExpression("Length", "Params.pad6_length")
body7 = doc.addObject("PartDesign::Body", "Body006")

sketch11 = doc.addObject("Sketcher::SketchObject", "Sketch010")
body7.addObject(sketch11)
sketch11.AttachmentSupport = (doc.getObject("YZ_Plane006"), [""])
sketch11.MapMode = "FlatFace"
sketch11.addGeometry(Part.Circle(V(93, -42, 0), V(0, 0, 1), 22), False)
sketch11.addGeometry(Part.Circle(V(93, -42, 0), V(0, 0, 1), 6), False)
sketch11.addConstraint(Sketcher.Constraint("Coincident", 1, 3, 0, 3))
sketch11.addConstraint(Sketcher.Constraint("Diameter", 0, Q("1.75 in")))
sketch11.addConstraint(Sketcher.Constraint("Diameter", 1, Q("0.45 in")))
sketch11.addConstraint(Sketcher.Constraint("DistanceY", 0, 3, -1, 1, 42.458098))
sketch11.addConstraint(Sketcher.Constraint("DistanceX", -1, 1, 0, 3, 93.385994))
sketch11.setExpression("Constraints[1]", "Params.sketch11_diameter")
sketch11.setExpression("Constraints[2]", "Params.sketch11_diameter2")
pad7 = doc.addObject("PartDesign::Pad", "Pad006")
body7.addObject(pad7)
pad7.Profile = sketch11
pad7.setExpression("Length", "Params.pad7_length")
body8 = doc.addObject("PartDesign::Body", "Body007")

sketch12 = doc.addObject("Sketcher::SketchObject", "Sketch011")
body8.addObject(sketch12)
sketch12.AttachmentSupport = (doc.getObject("YZ_Plane007"), [""])
sketch12.MapMode = "FlatFace"
sketch12.addGeometry(Part.LineSegment(V(-247, -33, 0), V(-247, -65, 0)), False)
sketch12.addGeometry(Part.LineSegment(V(-247, -65, 0), V(-95, -65, 0)), False)
sketch12.addGeometry(Part.LineSegment(V(-95, -65, 0), V(-95, -33, 0)), False)
sketch12.addGeometry(Part.LineSegment(V(-95, -33, 0), V(-247, -33, 0)), False)
sketch12.addConstraint(Sketcher.Constraint("Coincident", 0, 2, 1, 1))
sketch12.addConstraint(Sketcher.Constraint("Coincident", 1, 2, 2, 1))
sketch12.addConstraint(Sketcher.Constraint("Coincident", 2, 2, 3, 1))
sketch12.addConstraint(Sketcher.Constraint("Coincident", 3, 2, 0, 1))
sketch12.addConstraint(Sketcher.Constraint("Vertical", 0))
sketch12.addConstraint(Sketcher.Constraint("Horizontal", 1))
sketch12.addConstraint(Sketcher.Constraint("Vertical", 2))
sketch12.addConstraint(Sketcher.Constraint("Horizontal", 3))
sketch12.addConstraint(Sketcher.Constraint("DistanceX", 1, 1, 1, 2, Q("6 in")))
sketch12.addConstraint(Sketcher.Constraint("DistanceY", 0, 2, 0, 1, Q("1.25 in")))
sketch12.addConstraint(Sketcher.Constraint("DistanceY", 0, 2, -1, 1, 64.525431))
sketch12.addConstraint(Sketcher.Constraint("DistanceX", 0, 2, -1, 1, 247.316666))
sketch12.setExpression("Constraints[8]", "Params.sketch12_width")
sketch12.setExpression("Constraints[9]", "Params.sketch12_height")
pad8 = doc.addObject("PartDesign::Pad", "Pad007")
body8.addObject(pad8)
pad8.Profile = sketch12
pad8.setExpression("Length", "Params.pad8_length")
body9 = doc.addObject("PartDesign::Body", "Body008")

sketch13 = doc.addObject("Sketcher::SketchObject", "Sketch012")
body9.addObject(sketch13)
sketch13.AttachmentSupport = (doc.getObject("XY_Plane008"), [""])
sketch13.MapMode = "FlatFace"
sketch13.addGeometry(Part.LineSegment(V(60, -73, 0), V(60, -225, 0)), False)
sketch13.addGeometry(Part.LineSegment(V(60, -225, 0), V(187, -225, 0)), False)
sketch13.addGeometry(Part.LineSegment(V(187, -225, 0), V(187, -73, 0)), False)
sketch13.addGeometry(Part.LineSegment(V(187, -73, 0), V(60, -73, 0)), False)
sketch13.addConstraint(Sketcher.Constraint("Coincident", 0, 2, 1, 1))
sketch13.addConstraint(Sketcher.Constraint("Coincident", 1, 2, 2, 1))
sketch13.addConstraint(Sketcher.Constraint("Coincident", 2, 2, 3, 1))
sketch13.addConstraint(Sketcher.Constraint("Coincident", 3, 2, 0, 1))
sketch13.addConstraint(Sketcher.Constraint("Vertical", 0))
sketch13.addConstraint(Sketcher.Constraint("Horizontal", 1))
sketch13.addConstraint(Sketcher.Constraint("Vertical", 2))
sketch13.addConstraint(Sketcher.Constraint("Horizontal", 3))
sketch13.addConstraint(Sketcher.Constraint("DistanceX", 1, 1, 1, 2, Q("5 in")))
sketch13.addConstraint(Sketcher.Constraint("DistanceY", 0, 2, 0, 1, Q("6 in")))
sketch13.addConstraint(Sketcher.Constraint("DistanceX", -1, 1, 0, 2, 60.231347))
sketch13.addConstraint(Sketcher.Constraint("DistanceY", 0, 2, -1, 1, 224.909008))
sketch13.setExpression("Constraints[8]", "Params.sketch13_width")
sketch13.setExpression("Constraints[9]", "Params.sketch13_height")
pad9 = doc.addObject("PartDesign::Pad", "Pad008")
body9.addObject(pad9)
pad9.Profile = sketch13
pad9.setExpression("Length", "Params.pad9_length")
body10 = doc.addObject("PartDesign::Body", "Body009")

sketch14 = doc.addObject("Sketcher::SketchObject", "Sketch013")
body10.addObject(sketch14)
sketch14.AttachmentSupport = (doc.getObject("XY_Plane009"), [""])
sketch14.MapMode = "FlatFace"
sketch14.addGeometry(Part.LineSegment(V(51, 110, 0), V(51, 16, 0)), False)
sketch14.addGeometry(Part.LineSegment(V(51, 16, 0), V(105, 16, 0)), False)
sketch14.addGeometry(Part.LineSegment(V(105, 16, 0), V(105, 110, 0)), False)
sketch14.addGeometry(Part.LineSegment(V(105, 110, 0), V(51, 110, 0)), False)
sketch14.addConstraint(Sketcher.Constraint("Coincident", 0, 2, 1, 1))
sketch14.addConstraint(Sketcher.Constraint("Coincident", 1, 2, 2, 1))
sketch14.addConstraint(Sketcher.Constraint("Coincident", 2, 2, 3, 1))
sketch14.addConstraint(Sketcher.Constraint("Coincident", 3, 2, 0, 1))
sketch14.addConstraint(Sketcher.Constraint("Vertical", 0))
sketch14.addConstraint(Sketcher.Constraint("Horizontal", 1))
sketch14.addConstraint(Sketcher.Constraint("Vertical", 2))
sketch14.addConstraint(Sketcher.Constraint("Horizontal", 3))
sketch14.addConstraint(Sketcher.Constraint("DistanceY", 0, 2, 0, 1, Q("3.686 in")))
sketch14.addConstraint(Sketcher.Constraint("DistanceX", 1, 1, 1, 2, Q("2.1054 in")))
sketch14.addConstraint(Sketcher.Constraint("DistanceX", -1, 1, 0, 2, 51.300418))
sketch14.addConstraint(Sketcher.Constraint("DistanceY", -1, 1, 0, 2, 16.350845))
sketch14.setExpression("Constraints[8]", "Params.sketch14_height")
pad10 = doc.addObject("PartDesign::Pad", "Pad009")
body10.addObject(pad10)
pad10.Profile = sketch14
pad10.setExpression("Length", "Params.pad10_length")
body11 = doc.addObject("PartDesign::Body", "Body010")

sketch15 = doc.addObject("Sketcher::SketchObject", "Sketch014")
body11.addObject(sketch15)
sketch15.AttachmentSupport = (doc.getObject("XY_Plane010"), [""])
sketch15.MapMode = "FlatFace"
sketch15.addGeometry(Part.LineSegment(V(139, 111, 0), V(139, 17, 0)), False)
sketch15.addGeometry(Part.LineSegment(V(139, 17, 0), V(194, 17, 0)), False)
sketch15.addGeometry(Part.LineSegment(V(194, 17, 0), V(194, 111, 0)), False)
sketch15.addGeometry(Part.LineSegment(V(194, 111, 0), V(139, 111, 0)), False)
sketch15.addConstraint(Sketcher.Constraint("Coincident", 0, 2, 1, 1))
sketch15.addConstraint(Sketcher.Constraint("Coincident", 1, 2, 2, 1))
sketch15.addConstraint(Sketcher.Constraint("Coincident", 2, 2, 3, 1))
sketch15.addConstraint(Sketcher.Constraint("Coincident", 3, 2, 0, 1))
sketch15.addConstraint(Sketcher.Constraint("Vertical", 0))
sketch15.addConstraint(Sketcher.Constraint("Horizontal", 1))
sketch15.addConstraint(Sketcher.Constraint("Vertical", 2))
sketch15.addConstraint(Sketcher.Constraint("Horizontal", 3))
sketch15.addConstraint(Sketcher.Constraint("DistanceY", 0, 2, 0, 1, Q("3.686 in")))
sketch15.addConstraint(Sketcher.Constraint("DistanceX", 1, 1, 1, 2, Q("2.1454 in")))
sketch15.addConstraint(Sketcher.Constraint("DistanceX", -1, 1, 0, 2, Q("5.4839001 in")))
sketch15.addConstraint(Sketcher.Constraint("DistanceY", -1, 1, 0, 2, 17.242705))
sketch15.setExpression("Constraints[8]", "Params.sketch15_height")
pad11 = doc.addObject("PartDesign::Pad", "Pad010")
body11.addObject(pad11)
pad11.Profile = sketch15
pad11.setExpression("Length", "Params.pad11_length")
body12 = doc.addObject("PartDesign::Body", "Body011")

sketch16 = doc.addObject("Sketcher::SketchObject", "Sketch015")
body12.addObject(sketch16)
sketch16.AttachmentSupport = (doc.getObject("YZ_Plane011"), [""])
sketch16.MapMode = "FlatFace"
sketch16.addGeometry(Part.LineSegment(V(-94, -76, 0), V(-94, -129, 0)), False)
sketch16.addGeometry(Part.LineSegment(V(-94, -129, 0), V(58, -129, 0)), False)
sketch16.addGeometry(Part.LineSegment(V(58, -129, 0), V(58, -76, 0)), False)
sketch16.addGeometry(Part.LineSegment(V(58, -76, 0), V(-94, -76, 0)), False)
sketch16.addConstraint(Sketcher.Constraint("Coincident", 0, 2, 1, 1))
sketch16.addConstraint(Sketcher.Constraint("Coincident", 1, 2, 2, 1))
sketch16.addConstraint(Sketcher.Constraint("Coincident", 2, 2, 3, 1))
sketch16.addConstraint(Sketcher.Constraint("Coincident", 3, 2, 0, 1))
sketch16.addConstraint(Sketcher.Constraint("Vertical", 0))
sketch16.addConstraint(Sketcher.Constraint("Horizontal", 1))
sketch16.addConstraint(Sketcher.Constraint("Vertical", 2))
sketch16.addConstraint(Sketcher.Constraint("Horizontal", 3))
sketch16.addConstraint(Sketcher.Constraint("DistanceX", 1, 1, 1, 2, Q("6 in")))
sketch16.addConstraint(Sketcher.Constraint("DistanceY", 0, 2, 0, 1, Q("2.1 in")))
sketch16.addConstraint(Sketcher.Constraint("DistanceX", 0, 2, -1, 1, 94.337687))
sketch16.addConstraint(Sketcher.Constraint("DistanceY", 0, 2, -1, 1, 128.947437))
sketch16.setExpression("Constraints[8]", "Params.sketch16_width")
sketch16.setExpression("Constraints[9]", "Params.sketch16_height")
pad12 = doc.addObject("PartDesign::Pad", "Pad011")
body12.addObject(pad12)
pad12.Profile = sketch16
pad12.setExpression("Length", "Params.pad12_length")

doc.recompute()
